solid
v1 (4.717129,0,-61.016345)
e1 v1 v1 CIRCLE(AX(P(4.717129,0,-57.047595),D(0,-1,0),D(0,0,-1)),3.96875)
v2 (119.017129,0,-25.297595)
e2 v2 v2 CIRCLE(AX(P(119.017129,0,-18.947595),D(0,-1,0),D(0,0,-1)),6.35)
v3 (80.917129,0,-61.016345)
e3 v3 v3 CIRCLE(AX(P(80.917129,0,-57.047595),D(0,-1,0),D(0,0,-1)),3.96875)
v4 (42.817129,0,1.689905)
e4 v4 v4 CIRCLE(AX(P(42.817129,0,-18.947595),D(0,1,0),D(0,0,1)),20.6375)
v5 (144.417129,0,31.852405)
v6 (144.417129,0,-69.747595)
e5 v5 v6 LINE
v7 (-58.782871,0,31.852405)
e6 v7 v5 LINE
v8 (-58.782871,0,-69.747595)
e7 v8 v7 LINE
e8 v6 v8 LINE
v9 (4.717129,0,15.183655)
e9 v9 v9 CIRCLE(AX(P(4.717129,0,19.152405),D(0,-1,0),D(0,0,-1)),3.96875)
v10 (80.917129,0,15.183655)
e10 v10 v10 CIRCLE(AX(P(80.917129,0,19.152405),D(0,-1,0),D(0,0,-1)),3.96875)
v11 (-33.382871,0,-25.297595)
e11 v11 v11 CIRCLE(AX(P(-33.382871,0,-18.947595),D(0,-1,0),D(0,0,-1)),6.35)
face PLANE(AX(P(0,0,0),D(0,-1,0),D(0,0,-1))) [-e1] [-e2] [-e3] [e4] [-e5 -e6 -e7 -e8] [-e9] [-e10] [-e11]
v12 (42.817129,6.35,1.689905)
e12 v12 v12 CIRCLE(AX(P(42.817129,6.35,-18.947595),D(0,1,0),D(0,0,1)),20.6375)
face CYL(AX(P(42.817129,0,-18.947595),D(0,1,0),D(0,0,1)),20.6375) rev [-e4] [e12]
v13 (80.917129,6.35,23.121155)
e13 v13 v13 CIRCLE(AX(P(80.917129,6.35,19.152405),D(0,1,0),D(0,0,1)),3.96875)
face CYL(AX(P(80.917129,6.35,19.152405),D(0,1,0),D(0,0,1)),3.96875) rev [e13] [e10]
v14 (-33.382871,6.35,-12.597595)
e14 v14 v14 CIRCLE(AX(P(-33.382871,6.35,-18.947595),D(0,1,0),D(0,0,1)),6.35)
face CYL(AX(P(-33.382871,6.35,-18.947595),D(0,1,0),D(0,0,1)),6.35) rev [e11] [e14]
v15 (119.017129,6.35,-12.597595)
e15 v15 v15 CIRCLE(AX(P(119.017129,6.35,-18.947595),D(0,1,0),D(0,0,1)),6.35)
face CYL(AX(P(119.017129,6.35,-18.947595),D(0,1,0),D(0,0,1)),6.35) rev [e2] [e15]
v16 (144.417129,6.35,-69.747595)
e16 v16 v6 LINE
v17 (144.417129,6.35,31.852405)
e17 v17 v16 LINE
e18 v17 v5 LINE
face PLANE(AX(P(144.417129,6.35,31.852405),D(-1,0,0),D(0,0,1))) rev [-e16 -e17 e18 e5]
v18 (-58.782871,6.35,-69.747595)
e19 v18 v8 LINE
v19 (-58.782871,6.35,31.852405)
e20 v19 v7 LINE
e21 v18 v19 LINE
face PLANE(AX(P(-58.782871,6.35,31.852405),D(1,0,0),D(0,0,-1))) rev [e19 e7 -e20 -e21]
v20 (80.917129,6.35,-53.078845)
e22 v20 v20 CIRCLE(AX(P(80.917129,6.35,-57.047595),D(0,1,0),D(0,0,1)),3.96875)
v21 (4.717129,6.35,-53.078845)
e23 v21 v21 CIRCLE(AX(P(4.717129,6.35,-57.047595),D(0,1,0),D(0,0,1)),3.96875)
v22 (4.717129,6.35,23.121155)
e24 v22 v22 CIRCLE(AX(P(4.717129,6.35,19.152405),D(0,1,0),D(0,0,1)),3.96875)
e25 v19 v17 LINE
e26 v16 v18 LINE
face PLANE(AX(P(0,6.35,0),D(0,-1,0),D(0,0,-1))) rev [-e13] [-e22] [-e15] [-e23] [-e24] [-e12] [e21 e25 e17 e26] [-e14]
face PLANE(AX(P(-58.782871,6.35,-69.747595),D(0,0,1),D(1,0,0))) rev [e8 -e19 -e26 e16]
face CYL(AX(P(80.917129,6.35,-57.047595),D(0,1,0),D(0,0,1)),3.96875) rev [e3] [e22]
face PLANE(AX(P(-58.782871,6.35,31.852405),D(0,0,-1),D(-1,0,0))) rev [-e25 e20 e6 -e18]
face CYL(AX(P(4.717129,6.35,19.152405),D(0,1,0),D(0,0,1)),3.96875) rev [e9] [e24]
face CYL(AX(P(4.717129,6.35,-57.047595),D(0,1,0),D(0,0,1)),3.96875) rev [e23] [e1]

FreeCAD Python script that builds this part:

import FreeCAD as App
import Part
import Sketcher
from FreeCAD import Vector
Q = App.Units.Quantity

doc = App.newDocument("Part")
body = doc.addObject("PartDesign::Body", "Body")

# Sketch on XZ plane
sketch1 = doc.addObject("Sketcher::SketchObject", "Sketch")
body.addObject(sketch1)
sketch1.AttachmentSupport = (doc.XZ_Plane, [""])
sketch1.MapMode = "FlatFace"
sketch1.addGeometry([
    Part.LineSegment(Vector(-59, -70, 0), Vector(-59, 32, 0)),
    Part.LineSegment(Vector(-59, 32, 0), Vector(144, 32, 0)),
    Part.LineSegment(Vector(144, 32, 0), Vector(144, -70, 0)),
    Part.LineSegment(Vector(144, -70, 0), Vector(-59, -70, 0)),
], False)
sketch1.addConstraint([
    Sketcher.Constraint("Coincident", 0, 2, 1, 1),
    Sketcher.Constraint("Coincident", 1, 2, 2, 1),
    Sketcher.Constraint("Coincident", 2, 2, 3, 1),
    Sketcher.Constraint("Coincident", 3, 2, 0, 1),
    Sketcher.Constraint("Vertical", 0),
    Sketcher.Constraint("Horizontal", 1),
    Sketcher.Constraint("Vertical", 2),
    Sketcher.Constraint("Horizontal", 3),
    Sketcher.Constraint("DistanceX", 1, 1, 1, 2, Q("8 in")),
    Sketcher.Constraint("DistanceY", 0, 1, 0, 2, Q("4 in")),
    Sketcher.Constraint("DistanceX", 0, 2, -1, 1, Q("58.782871 mm")),
    Sketcher.Constraint("DistanceY", -1, 1, 0, 2, Q("31.852405 mm")),
])
pad1 = doc.addObject("PartDesign::Pad", "Pad")
body.addObject(pad1)
pad1.Profile = sketch1
pad1.Length = Q("0.25 in")
pad1.Reversed = True

# Sketch on XZ plane
sketch2 = doc.addObject("Sketcher::SketchObject", "Sketch001")
body.addObject(sketch2)
sketch2.AttachmentSupport = (doc.XZ_Plane, [""])
sketch2.MapMode = "FlatFace"
sketch2.AttachmentOffset = App.Placement(Vector(0, 0, -0.25 * 25.4), App.Rotation())
sketch2.addGeometry([
    Part.Circle(Vector(-33, -19, 0), Vector(0, 0, 1), 6),
    Part.Circle(Vector(119, -19, 0), Vector(0, 0, 1), 6),
], False)
sketch2.addConstraint([
    Sketcher.Constraint("Equal", 0, 1),
    Sketcher.Constraint("Horizontal", 0, 3, 1, 3),
    Sketcher.Constraint("Diameter", 0, Q("0.5 in")),
    Sketcher.Constraint("DistanceX", 0, 3, 1, 3, Q("6 in")),
    Sketcher.Constraint("DistanceX", 0, 3, -1, 1, Q("33.382871 mm")),
    Sketcher.Constraint("DistanceY", 0, 3, -1, 1, Q("18.947595 mm")),
])
doc.recompute()
hole = doc.addObject("PartDesign::Hole", "Hole")
body.addObject(hole)
hole.Profile = sketch2
hole.ThreadType = "None"
hole.Diameter = Q("0.5 in")
hole.DepthType = "Dimension"
hole.Depth = Q("1 in")
hole.DrillPoint = "Angled"
hole.DrillPointAngle = 118
hole.Reversed = True

# Sketch on XZ plane
sketch3 = doc.addObject("Sketcher::SketchObject", "Sketch002")
body.addObject(sketch3)
sketch3.AttachmentSupport = (doc.XZ_Plane, [""])
sketch3.MapMode = "FlatFace"
sketch3.AttachmentOffset = App.Placement(Vector(0, 0, -0.25 * 25.4), App.Rotation())
sketch3.addGeometry(Part.Circle(Vector(43, -19, 0), Vector(0, 0, 1), 21), False)
sketch3.addConstraint([
    Sketcher.Constraint("Diameter", 0, Q("1.625 in")),
    Sketcher.Constraint("DistanceX", -1, 1, 0, 3, Q("42.817129 mm")),
    Sketcher.Constraint("DistanceY", 0, 3, -1, 1, Q("18.947595 mm")),
])
pocket1 = doc.addObject("PartDesign::Pocket", "Pocket")
body.addObject(pocket1)
pocket1.Profile = sketch3
pocket1.Type = "ThroughAll"
pocket1.Reversed = True

# Sketch on XZ plane
sketch4 = doc.addObject("Sketcher::SketchObject", "Sketch003")
body.addObject(sketch4)
sketch4.AttachmentSupport = (doc.XZ_Plane, [""])
sketch4.MapMode = "FlatFace"
sketch4.AttachmentOffset = App.Placement(Vector(0, 0, -0.25 * 25.4), App.Rotation())
sketch4.addGeometry([
    Part.Circle(Vector(4.7, -57, 0), Vector(0, 0, 1), 4),
    Part.Circle(Vector(80.9, -57, 0), Vector(0, 0, 1), 4),
    Part.Circle(Vector(80.9, 19.2, 0), Vector(0, 0, 1), 4),
    Part.Circle(Vector(4.7, 19.2, 0), Vector(0, 0, 1), 4),
], False)
sketch4.addConstraint([
    Sketcher.Constraint("Equal", 0, 1),
    Sketcher.Constraint("Equal", 1, 2),
    Sketcher.Constraint("Equal", 2, 3),
    Sketcher.Constraint("Horizontal", 0, 3, 1, 3),
    Sketcher.Constraint("Horizontal", 2, 3, 3, 3),
    Sketcher.Constraint("Vertical", 1, 3, 2, 3),
    Sketcher.Constraint("Vertical", 0, 3, 3, 3),
    Sketcher.Constraint("Diameter", 0, Q("0.3125 in")),
    Sketcher.Constraint("DistanceX", 0, 3, 1, 3, Q("3 in")),
    Sketcher.Constraint("DistanceY", 1, 3, 2, 3, Q("3 in")),
    Sketcher.Constraint("DistanceX", -1, 1, 0, 3, Q("4.717129 mm")),
    Sketcher.Constraint("DistanceY", 0, 3, -1, 1, Q("57.047595 mm")),
])
doc.recompute()
hole2 = doc.addObject("PartDesign::Hole", "Hole001")
body.addObject(hole2)
hole2.Profile = sketch4
hole2.ThreadType = "None"
hole2.Diameter = Q("0.3125 in")
hole2.DepthType = "Dimension"
hole2.Depth = Q("0.9375 in")
hole2.DrillPoint = "Angled"
hole2.DrillPointAngle = 118
hole2.Reversed = True

doc.recompute()
